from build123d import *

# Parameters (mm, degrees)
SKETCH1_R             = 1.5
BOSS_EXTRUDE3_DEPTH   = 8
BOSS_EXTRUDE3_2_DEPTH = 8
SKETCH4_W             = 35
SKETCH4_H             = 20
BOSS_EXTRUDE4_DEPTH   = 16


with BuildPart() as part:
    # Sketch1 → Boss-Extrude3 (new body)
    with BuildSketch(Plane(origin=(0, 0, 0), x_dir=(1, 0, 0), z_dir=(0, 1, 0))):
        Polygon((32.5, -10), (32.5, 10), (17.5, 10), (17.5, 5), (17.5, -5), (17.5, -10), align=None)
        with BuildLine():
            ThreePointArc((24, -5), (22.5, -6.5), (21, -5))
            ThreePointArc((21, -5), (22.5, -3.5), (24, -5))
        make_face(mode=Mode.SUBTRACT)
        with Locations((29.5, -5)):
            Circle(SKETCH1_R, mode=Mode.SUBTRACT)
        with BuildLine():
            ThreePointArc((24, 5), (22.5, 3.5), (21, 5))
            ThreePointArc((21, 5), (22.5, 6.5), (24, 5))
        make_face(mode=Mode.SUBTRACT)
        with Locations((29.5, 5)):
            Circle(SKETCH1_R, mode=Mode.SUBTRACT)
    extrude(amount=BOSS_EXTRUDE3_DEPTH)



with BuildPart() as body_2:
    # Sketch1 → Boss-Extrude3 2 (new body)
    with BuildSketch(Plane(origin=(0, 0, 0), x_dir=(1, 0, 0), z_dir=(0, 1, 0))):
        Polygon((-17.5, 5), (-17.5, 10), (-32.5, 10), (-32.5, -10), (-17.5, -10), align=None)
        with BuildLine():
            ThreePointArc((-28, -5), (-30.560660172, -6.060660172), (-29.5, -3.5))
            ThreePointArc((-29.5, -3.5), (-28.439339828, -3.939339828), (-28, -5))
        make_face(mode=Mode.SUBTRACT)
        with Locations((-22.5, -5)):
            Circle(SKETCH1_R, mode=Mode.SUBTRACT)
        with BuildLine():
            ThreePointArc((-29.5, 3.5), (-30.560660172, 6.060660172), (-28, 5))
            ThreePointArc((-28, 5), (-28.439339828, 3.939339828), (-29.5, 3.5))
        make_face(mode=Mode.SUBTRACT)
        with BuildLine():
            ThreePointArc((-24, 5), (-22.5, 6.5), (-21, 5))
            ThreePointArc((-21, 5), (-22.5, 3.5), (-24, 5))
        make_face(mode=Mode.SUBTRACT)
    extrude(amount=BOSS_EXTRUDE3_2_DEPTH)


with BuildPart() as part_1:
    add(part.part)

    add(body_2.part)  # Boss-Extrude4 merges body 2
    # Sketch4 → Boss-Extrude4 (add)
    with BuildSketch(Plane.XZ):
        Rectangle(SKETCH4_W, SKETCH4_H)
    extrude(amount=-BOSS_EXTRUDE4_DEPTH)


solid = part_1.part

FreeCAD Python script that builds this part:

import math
import FreeCAD as App
import Part
import Sketcher
Q = App.Units.Quantity


def add_polygon(sketch, points):
    """Adds a closed chain of lines whose ends are joined by coincident constraints."""
    first, n = sketch.GeometryCount, len(points)
    for a, b in zip(points, points[1:] + points[:1]):
        sketch.addGeometry(Part.LineSegment(App.Vector(*a, 0), App.Vector(*b, 0)), False)
    for i in range(n):
        sketch.addConstraint(Sketcher.Constraint("Coincident", first + i, 2, first + (i + 1) % n, 1))

doc = App.newDocument("Part")
params = doc.addObject("Spreadsheet::Sheet", "Params")
for row, (alias, value) in enumerate([
    ("sketch1_diameter", "3 mm"),
    ("sketch1_width", "15 mm"),
    ("sketch1_height", "20 mm"),
    ("pad1_length", "8 mm"),
    ("sketch2_diameter", "3 mm"),
    ("sketch2_width", "15 mm"),
    ("sketch2_height", "20 mm"),
    ("pad2_length", "8 mm"),
    ("sketch3_width", "35 mm"),
    ("sketch3_height", "20 mm"),
    ("pad3_length", "16 mm"),
], start=1):
    params.set(f"A{row}", alias)
    params.set(f"B{row}", "=" + value)
    params.setAlias(f"B{row}", alias)

body = doc.addObject("PartDesign::Body", "Body")

sketch1 = doc.addObject("Sketcher::SketchObject", "Sketch")
body.addObject(sketch1)
sketch1.AttachmentSupport = (doc.XZ_Plane, [""])
sketch1.MapMode = "FlatFace"
add_polygon(sketch1, [(32.5, 10), (32.5, -10), (17.5, -10), (17.5, 10)])
sketch1.addGeometry(Part.Circle(App.Vector(22.5, 5, 0), App.Vector(0, 0, 1), 1.5), False)
sketch1.addGeometry(Part.Circle(App.Vector(29.5, 5, 0), App.Vector(0, 0, 1), 1.5), False)
sketch1.addGeometry(Part.Circle(App.Vector(22.5, -5, 0), App.Vector(0, 0, 1), 1.5), False)
sketch1.addGeometry(Part.Circle(App.Vector(29.5, -5, 0), App.Vector(0, 0, 1), 1.5), False)
sketch1.addConstraint([
    Sketcher.Constraint("Vertical", 0),
    Sketcher.Constraint("Horizontal", 1),
    Sketcher.Constraint("Vertical", 2),
    Sketcher.Constraint("Horizontal", 3),
    Sketcher.Constraint("Equal", 4, 5),
    Sketcher.Constraint("Equal", 5, 6),
    Sketcher.Constraint("Equal", 6, 7),
    Sketcher.Constraint("Symmetric", 4, 3, 6, 3, -1),
    Sketcher.Constraint("Symmetric", 5, 3, 7, 3, -1),
    Sketcher.Constraint("Horizontal", 4, 3, 5, 3),
    Sketcher.Constraint("Diameter", 4, Q("3 mm")),
    Sketcher.Constraint("DistanceX", 1, 2, 1, 1, Q("15 mm")),
    Sketcher.Constraint("DistanceY", 0, 2, 0, 1, Q("20 mm")),
    Sketcher.Constraint("DistanceY", -1, 1, 4, 3, Q("5 mm")),
    Sketcher.Constraint("DistanceY", 0, 2, -1, 1, Q("10 mm")),
    Sketcher.Constraint("DistanceX", 4, 3, 5, 3, Q("7 mm")),
    Sketcher.Constraint("DistanceX", 7, 3, 0, 2, Q("3 mm")),
    Sketcher.Constraint("DistanceX", -1, 1, 4, 3, Q("22.5 mm")),
])
sketch1.setExpression("Constraints[14]", "Params.sketch1_diameter")
sketch1.setExpression("Constraints[15]", "Params.sketch1_width")
sketch1.setExpression("Constraints[16]", "Params.sketch1_height")
pad1 = doc.addObject("PartDesign::Pad", "Pad")
body.addObject(pad1)
pad1.Profile = sketch1
pad1.setExpression("Length", "Params.pad1_length")
pad1.Reversed = True
body2 = doc.addObject("PartDesign::Body", "Body001")

sketch2 = doc.addObject("Sketcher::SketchObject", "Sketch001")
body2.addObject(sketch2)
sketch2.AttachmentSupport = (doc.getObject("XZ_Plane001"), [""])
sketch2.MapMode = "FlatFace"
add_polygon(sketch2, [(-17.5, -10), (-32.5, -10), (-32.5, 10), (-17.5, 10)])
sketch2.addGeometry(Part.ArcOfCircle(Part.Circle(App.Vector(-29.5, 5, 0), App.Vector(0, 0, 1), 1.5), math.radians(-90), math.radians(0)), False)
sketch2.addGeometry(Part.ArcOfCircle(Part.Circle(App.Vector(-29.5, 5, 0), App.Vector(0, 0, 1), 1.5), math.radians(0), math.radians(270)), False)
sketch2.addGeometry(Part.Circle(App.Vector(-22.5, 5, 0), App.Vector(0, 0, 1), 1.5), False)
sketch2.addGeometry(Part.ArcOfCircle(Part.Circle(App.Vector(-29.5, -5, 0), App.Vector(0, 0, 1), 1.5), math.radians(0), math.radians(90)), False)
sketch2.addGeometry(Part.ArcOfCircle(Part.Circle(App.Vector(-29.5, -5, 0), App.Vector(0, 0, 1), 1.5), math.radians(90), math.radians(360)), False)
sketch2.addGeometry(Part.Circle(App.Vector(-22.5, -5, 0), App.Vector(0, 0, 1), 1.5), False)
sketch2.addConstraint([
    Sketcher.Constraint("Tangent", 4, 1, 5, 2),
    Sketcher.Constraint("Coincident", 5, 1, 4, 2),
    Sketcher.Constraint("Tangent", 7, 1, 8, 2),
    Sketcher.Constraint("Coincident", 8, 1, 7, 2),
    Sketcher.Constraint("Horizontal", 0),
    Sketcher.Constraint("Vertical", 1),
    Sketcher.Constraint("Horizontal", 2),
    Sketcher.Constraint("Vertical", 3),
    Sketcher.Constraint("Equal", 5, 6),
    Sketcher.Constraint("Equal", 6, 7),
    Sketcher.Constraint("Equal", 8, 9),
    Sketcher.Constraint("Symmetric", 4, 3, 7, 3, -1),
    Sketcher.Constraint("Symmetric", 6, 3, 9, 3, -1),
    Sketcher.Constraint("Horizontal", 5, 3, 6, 3),
    Sketcher.Constraint("Horizontal", 6, 3, 5, 1),
    Sketcher.Constraint("Horizontal", 9, 3, 7, 1),
    Sketcher.Constraint("Vertical", 8, 3, 4, 1),
    Sketcher.Constraint("Vertical", 4, 1, 8, 1),
    Sketcher.Constraint("Diameter", 6, Q("3 mm")),
    Sketcher.Constraint("DistanceX", 0, 2, 0, 1, Q("15 mm")),
    Sketcher.Constraint("DistanceY", 1, 1, 1, 2, Q("20 mm")),
    Sketcher.Constraint("DistanceY", -1, 1, 4, 3, Q("5 mm")),
    Sketcher.Constraint("DistanceY", 0, 2, -1, 1, Q("10 mm")),
    Sketcher.Constraint("DistanceX", 5, 1, -1, 1, Q("28 mm")),
    Sketcher.Constraint("DistanceX", 4, 3, 6, 3, Q("7 mm")),
    Sketcher.Constraint("DistanceX", 0, 2, 8, 3, Q("3 mm")),
])
sketch2.setExpression("Constraints[22]", "Params.sketch2_diameter")
sketch2.setExpression("Constraints[23]", "Params.sketch2_width")
sketch2.setExpression("Constraints[24]", "Params.sketch2_height")
pad2 = doc.addObject("PartDesign::Pad", "Pad001")
body2.addObject(pad2)
pad2.Profile = sketch2
pad2.setExpression("Length", "Params.pad2_length")
pad2.Reversed = True
body.AllowCompound = True
doc.recompute()

boolean = doc.addObject("PartDesign::Boolean", "Boolean")
body.addObject(boolean)
boolean.Type = "Fuse"
boolean.addObjects([body2])

sketch3 = doc.addObject("Sketcher::SketchObject", "Sketch002")
body.addObject(sketch3)
sketch3.AttachmentSupport = (doc.XZ_Plane, [""])
sketch3.MapMode = "FlatFace"
add_polygon(sketch3, [(-18, 10), (-18, -10), (18, -10), (18, 10)])
sketch3.addConstraint([
    Sketcher.Constraint("Vertical", 0),
    Sketcher.Constraint("Horizontal", 1),
    Sketcher.Constraint("Vertical", 2),
    Sketcher.Constraint("Horizontal", 3),
    Sketcher.Constraint("Symmetric", 0, 2, 2, 2, -1, 1),
    Sketcher.Constraint("DistanceX", 1, 1, 1, 2, Q("35 mm")),
    Sketcher.Constraint("DistanceY", 0, 2, 0, 1, Q("20 mm")),
])
sketch3.setExpression("Constraints[9]", "Params.sketch3_width")
sketch3.setExpression("Constraints[10]", "Params.sketch3_height")
pad3 = doc.addObject("PartDesign::Pad", "Pad002")
body.addObject(pad3)
pad3.Profile = sketch3
pad3.setExpression("Length", "Params.pad3_length")
pad3.Reversed = True

doc.recompute()
